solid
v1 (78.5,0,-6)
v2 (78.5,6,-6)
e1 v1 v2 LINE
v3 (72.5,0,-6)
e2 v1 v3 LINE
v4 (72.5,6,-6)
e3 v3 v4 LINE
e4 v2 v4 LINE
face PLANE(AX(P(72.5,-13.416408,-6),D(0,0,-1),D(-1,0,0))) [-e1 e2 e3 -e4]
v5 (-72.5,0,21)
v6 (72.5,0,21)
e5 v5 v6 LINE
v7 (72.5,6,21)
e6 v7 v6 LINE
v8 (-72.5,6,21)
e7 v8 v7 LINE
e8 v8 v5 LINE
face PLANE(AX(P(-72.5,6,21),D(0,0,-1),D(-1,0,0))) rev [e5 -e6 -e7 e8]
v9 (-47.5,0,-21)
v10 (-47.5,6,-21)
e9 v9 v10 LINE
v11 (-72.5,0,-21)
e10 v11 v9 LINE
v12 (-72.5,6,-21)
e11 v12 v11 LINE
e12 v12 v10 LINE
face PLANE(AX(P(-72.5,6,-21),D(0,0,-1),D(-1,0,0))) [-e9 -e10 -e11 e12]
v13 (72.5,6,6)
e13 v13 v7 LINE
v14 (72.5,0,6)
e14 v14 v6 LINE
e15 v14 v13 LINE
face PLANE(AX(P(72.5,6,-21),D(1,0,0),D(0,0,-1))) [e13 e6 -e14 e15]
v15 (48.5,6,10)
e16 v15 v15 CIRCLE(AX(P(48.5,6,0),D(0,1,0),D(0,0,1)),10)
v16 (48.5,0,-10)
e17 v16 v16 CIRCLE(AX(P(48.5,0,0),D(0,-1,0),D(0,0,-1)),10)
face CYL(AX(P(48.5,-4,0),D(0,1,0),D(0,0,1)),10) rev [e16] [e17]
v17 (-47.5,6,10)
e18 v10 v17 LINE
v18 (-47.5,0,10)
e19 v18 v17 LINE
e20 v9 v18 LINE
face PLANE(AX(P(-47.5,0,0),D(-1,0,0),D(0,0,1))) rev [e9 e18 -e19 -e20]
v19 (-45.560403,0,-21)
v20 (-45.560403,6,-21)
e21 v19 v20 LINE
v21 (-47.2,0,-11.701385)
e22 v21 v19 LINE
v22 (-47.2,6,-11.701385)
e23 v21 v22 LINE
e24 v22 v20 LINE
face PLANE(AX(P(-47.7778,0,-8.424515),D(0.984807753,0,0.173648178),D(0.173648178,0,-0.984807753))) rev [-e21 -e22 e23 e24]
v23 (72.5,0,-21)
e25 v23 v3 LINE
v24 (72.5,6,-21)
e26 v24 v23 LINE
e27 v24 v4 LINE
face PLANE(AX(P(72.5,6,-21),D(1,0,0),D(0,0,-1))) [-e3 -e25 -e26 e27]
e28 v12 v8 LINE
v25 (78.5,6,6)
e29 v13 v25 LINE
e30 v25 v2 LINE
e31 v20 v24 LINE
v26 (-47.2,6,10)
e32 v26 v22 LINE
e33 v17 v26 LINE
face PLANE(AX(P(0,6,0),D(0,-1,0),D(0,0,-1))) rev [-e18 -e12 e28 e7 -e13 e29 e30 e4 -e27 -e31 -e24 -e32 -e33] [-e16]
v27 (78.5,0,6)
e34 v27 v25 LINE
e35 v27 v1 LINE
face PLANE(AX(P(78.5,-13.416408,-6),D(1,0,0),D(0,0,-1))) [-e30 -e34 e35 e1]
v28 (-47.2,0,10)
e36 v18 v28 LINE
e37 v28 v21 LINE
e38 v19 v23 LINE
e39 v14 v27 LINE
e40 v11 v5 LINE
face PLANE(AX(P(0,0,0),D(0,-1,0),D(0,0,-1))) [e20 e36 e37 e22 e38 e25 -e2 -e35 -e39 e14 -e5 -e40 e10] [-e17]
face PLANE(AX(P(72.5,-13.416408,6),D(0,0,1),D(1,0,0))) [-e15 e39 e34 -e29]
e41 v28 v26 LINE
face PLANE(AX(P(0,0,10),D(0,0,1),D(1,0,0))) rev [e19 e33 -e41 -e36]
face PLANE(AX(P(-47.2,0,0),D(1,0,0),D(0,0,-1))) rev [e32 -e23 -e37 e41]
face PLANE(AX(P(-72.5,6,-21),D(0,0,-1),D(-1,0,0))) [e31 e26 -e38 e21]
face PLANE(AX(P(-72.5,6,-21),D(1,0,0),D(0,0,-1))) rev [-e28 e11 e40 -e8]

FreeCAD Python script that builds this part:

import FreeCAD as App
import Part
import Sketcher
from FreeCAD import Vector
Q = App.Units.Quantity

doc = App.newDocument("Part")
params = doc.addObject("Spreadsheet::Sheet", "Params")
for row, (alias, value) in enumerate([
    ("sketch1_width", "145 mm"),
    ("sketch1_height", "42 mm"),
    ("pad1_length", "6 mm"),
    ("sketch2_diameter", "8 mm"),
    ("sketch3_width", "6 mm"),
    ("sketch3_height", "12 mm"),
    ("pad2_length", "6 mm"),
    ("sketch4_width", "13 mm"),
    ("sketch4_width2", "19 mm"),
    ("sketch4_height", "11 mm"),
    ("sketch4_height2", "3.5 mm"),
    ("pad3_length", "6 mm"),
    ("sketch5_diameter", "1.5 mm"),
    ("sketch6_height", "31 mm"),
    ("sketch6_width", "0.3 mm"),
    ("sketch7_diameter", "20 mm"),
    ("pocket4_length", "10 mm"),
], start=1):
    params.set(f"A{row}", alias)
    params.set(f"B{row}", "=" + value)
    params.setAlias(f"B{row}", alias)

body = doc.addObject("PartDesign::Body", "Body")

# Sketch on XZ plane
sketch1 = doc.addObject("Sketcher::SketchObject", "Sketch")
body.addObject(sketch1)
sketch1.AttachmentSupport = (doc.XZ_Plane, [""])
sketch1.MapMode = "FlatFace"
sketch1.addGeometry([
    Part.LineSegment(Vector(-72, -21, 0), Vector(-72, 21, 0)),
    Part.LineSegment(Vector(-72, 21, 0), Vector(72, 21, 0)),
    Part.LineSegment(Vector(72, 21, 0), Vector(72, -21, 0)),
    Part.LineSegment(Vector(72, -21, 0), Vector(-72, -21, 0)),
], False)
sketch1.addConstraint([
    Sketcher.Constraint("Coincident", 0, 2, 1, 1),
    Sketcher.Constraint("Coincident", 1, 2, 2, 1),
    Sketcher.Constraint("Coincident", 2, 2, 3, 1),
    Sketcher.Constraint("Coincident", 3, 2, 0, 1),
    Sketcher.Constraint("Vertical", 0),
    Sketcher.Constraint("Horizontal", 1),
    Sketcher.Constraint("Vertical", 2),
    Sketcher.Constraint("Horizontal", 3),
    Sketcher.Constraint("Symmetric", 0, 2, 2, 2, -1, 1),
    Sketcher.Constraint("DistanceX", 1, 1, 1, 2, 145.0),
    Sketcher.Constraint("DistanceY", 0, 1, 0, 2, 42.0),
])
sketch1.setExpression("Constraints[9]", "Params.sketch1_width")
sketch1.setExpression("Constraints[10]", "Params.sketch1_height")
pad1 = doc.addObject("PartDesign::Pad", "Pad")
body.addObject(pad1)
pad1.Profile = sketch1
pad1.setExpression("Length", "Params.pad1_length")
pad1.Reversed = True

# Sketch on XZ plane
sketch2 = doc.addObject("Sketcher::SketchObject", "Sketch001")
body.addObject(sketch2)
sketch2.AttachmentSupport = (doc.XZ_Plane, [""])
sketch2.MapMode = "FlatFace"
sketch2.addGeometry(Part.Circle(Vector(48.5, 0, 0), Vector(0, 0, 1), 4), False)
sketch2.addConstraint([
    Sketcher.Constraint("PointOnObject", 0, 3, -1),
    Sketcher.Constraint("Diameter", 0, 8.0),
    Sketcher.Constraint("DistanceX", -1, 1, 0, 3, 48.5),
])
sketch2.setExpression("Constraints[1]", "Params.sketch2_diameter")
pocket1 = doc.addObject("PartDesign::Pocket", "Pocket")
body.addObject(pocket1)
pocket1.Profile = sketch2
pocket1.Type = "ThroughAll"

# Sketch on XZ plane
sketch3 = doc.addObject("Sketcher::SketchObject", "Sketch002")
body.addObject(sketch3)
sketch3.AttachmentSupport = (doc.XZ_Plane, [""])
sketch3.MapMode = "FlatFace"
sketch3.AttachmentOffset = App.Placement(Vector(0, 0, -6), App.Rotation())
sketch3.addGeometry([
    Part.LineSegment(Vector(72, -6, 0), Vector(72, 6, 0)),
    Part.LineSegment(Vector(72, 6, 0), Vector(78, 6, 0)),
    Part.LineSegment(Vector(78, 6, 0), Vector(78, -6, 0)),
    Part.LineSegment(Vector(78, -6, 0), Vector(72, -6, 0)),
], False)
sketch3.addConstraint([
    Sketcher.Constraint("Coincident", 0, 2, 1, 1),
    Sketcher.Constraint("Coincident", 1, 2, 2, 1),
    Sketcher.Constraint("Coincident", 2, 2, 3, 1),
    Sketcher.Constraint("Coincident", 3, 2, 0, 1),
    Sketcher.Constraint("Vertical", 0),
    Sketcher.Constraint("Horizontal", 1),
    Sketcher.Constraint("Vertical", 2),
    Sketcher.Constraint("Horizontal", 3),
    Sketcher.Constraint("DistanceX", 1, 1, 1, 2, 6.0),
    Sketcher.Constraint("DistanceY", 0, 1, 0, 2, 12.0),
    Sketcher.Constraint("DistanceY", -1, 1, 0, 2, 6.0),
    Sketcher.Constraint("DistanceX", -1, 1, 0, 2, 72.5),
])
sketch3.setExpression("Constraints[8]", "Params.sketch3_width")
sketch3.setExpression("Constraints[9]", "Params.sketch3_height")
pad2 = doc.addObject("PartDesign::Pad", "Pad001")
body.addObject(pad2)
pad2.Profile = sketch3
pad2.setExpression("Length", "Params.pad2_length")

# Sketch on XZ plane
sketch4 = doc.addObject("Sketcher::SketchObject", "Sketch003")
body.addObject(sketch4)
sketch4.AttachmentSupport = (doc.XZ_Plane, [""])
sketch4.MapMode = "FlatFace"
sketch4.AttachmentOffset = App.Placement(Vector(0, 0, -6), App.Rotation())
sketch4.addGeometry([
    Part.LineSegment(Vector(-59.5, 10, 0), Vector(-72.5, 10, 0)),  # 0
    Part.LineSegment(Vector(-72.5, 10, 0), Vector(-72.5, 21, 0)),  # 1
    Part.LineSegment(Vector(-72.5, 21, 0), Vector(-53.5, 21, 0)),  # 2
    Part.LineSegment(Vector(-53.5, 21, 0), Vector(-53.5, 17.5, 0)),  # 3
    Part.LineSegment(Vector(-53.5, 17.5, 0), Vector(-59.5, 17.5, 0)),  # 4
    Part.LineSegment(Vector(-59.5, 17.5, 0), Vector(-59.5, 10, 0)),  # 5
], False)
sketch4.addConstraint([
    Sketcher.Constraint("Coincident", 0, 2, 1, 1),
    Sketcher.Constraint("Coincident", 1, 2, 2, 1),
    Sketcher.Constraint("Coincident", 2, 2, 3, 1),
    Sketcher.Constraint("Coincident", 3, 2, 4, 1),
    Sketcher.Constraint("Coincident", 4, 2, 5, 1),
    Sketcher.Constraint("Coincident", 5, 2, 0, 1),
    Sketcher.Constraint("Horizontal", 0),
    Sketcher.Constraint("Vertical", 1),
    Sketcher.Constraint("Horizontal", 2),
    Sketcher.Constraint("Vertical", 3),
    Sketcher.Constraint("Horizontal", 4),
    Sketcher.Constraint("Vertical", 5),
    Sketcher.Constraint("DistanceX", 0, 2, 0, 1, 13.0),
    Sketcher.Constraint("DistanceX", 2, 1, 2, 2, 19.0),
    Sketcher.Constraint("DistanceY", 1, 1, 1, 2, 11.0),
    Sketcher.Constraint("DistanceY", 3, 2, 3, 1, 3.5),
    Sketcher.Constraint("DistanceY", -1, 1, 0, 2, 10.0),
    Sketcher.Constraint("DistanceX", 0, 2, -1, 1, 72.5),
])
sketch4.setExpression("Constraints[12]", "Params.sketch4_width")
sketch4.setExpression("Constraints[13]", "Params.sketch4_width2")
sketch4.setExpression("Constraints[14]", "Params.sketch4_height")
sketch4.setExpression("Constraints[15]", "Params.sketch4_height2")
pad3 = doc.addObject("PartDesign::Pad", "Pad002")
body.addObject(pad3)
pad3.Profile = sketch4
pad3.setExpression("Length", "Params.pad3_length")

# Sketch on XZ plane
sketch5 = doc.addObject("Sketcher::SketchObject", "Sketch004")
body.addObject(sketch5)
sketch5.AttachmentSupport = (doc.XZ_Plane, [""])
sketch5.MapMode = "FlatFace"
sketch5.addGeometry(Part.Circle(Vector(-161.5, -154.4, 0), Vector(0, 0, 1), 0.8), False)
sketch5.addConstraint([
    Sketcher.Constraint("Diameter", 0, 1.5),
    Sketcher.Constraint("DistanceX", 0, 3, -1, 1, 161.479104),
    Sketcher.Constraint("DistanceY", 0, 3, -1, 1, 154.351328),
])
sketch5.setExpression("Constraints[0]", "Params.sketch5_diameter")
pocket2 = doc.addObject("PartDesign::Pocket", "Pocket001")
body.addObject(pocket2)
pocket2.Profile = sketch5
pocket2.Type = "ThroughAll"

# Sketch on XZ plane
sketch6 = doc.addObject("Sketcher::SketchObject", "Sketch005")
body.addObject(sketch6)
sketch6.AttachmentSupport = (doc.XZ_Plane, [""])
sketch6.MapMode = "FlatFace"
sketch6.AttachmentOffset = App.Placement(Vector(0, 0, -6), App.Rotation())
sketch6.addGeometry([
    Part.LineSegment(Vector(-47.5, -21, 0), Vector(-47.5, 10, 0)),  # 0
    Part.LineSegment(Vector(-47.5, 10, 0), Vector(-47.2, 10, 0)),  # 1
    Part.LineSegment(Vector(-47.2, 10, 0), Vector(-47.2, -11.7, 0)),  # 2
    Part.LineSegment(Vector(-47.2, -11.7, 0), Vector(-45.56, -21, 0)),  # 3
    Part.LineSegment(Vector(-45.56, -21, 0), Vector(-47.5, -21, 0)),  # 4
], False)
sketch6.addConstraint([
    Sketcher.Constraint("Coincident", 0, 2, 1, 1),
    Sketcher.Constraint("Coincident", 1, 2, 2, 1),
    Sketcher.Constraint("Coincident", 2, 2, 3, 1),
    Sketcher.Constraint("Coincident", 3, 2, 4, 1),
    Sketcher.Constraint("Coincident", 4, 2, 0, 1),
    Sketcher.Constraint("Vertical", 0),
    Sketcher.Constraint("Horizontal", 1),
    Sketcher.Constraint("Vertical", 2),
    Sketcher.Constraint("Horizontal", 4),
    Sketcher.Constraint("DistanceY", 0, 1, 0, 2, 31.0),
    Sketcher.Constraint("Angle", 3, Q("-80 deg")),
    Sketcher.Constraint("DistanceX", 1, 1, 1, 2, 0.3),
    Sketcher.Constraint("DistanceY", -1, 1, 0, 2, 10.0),
    Sketcher.Constraint("DistanceX", 0, 2, -1, 1, 47.5),
    Sketcher.Constraint("Distance", 3, 9.442062),
])
sketch6.setExpression("Constraints[9]", "Params.sketch6_height")
sketch6.setExpression("Constraints[11]", "Params.sketch6_width")
pocket3 = doc.addObject("PartDesign::Pocket", "Pocket002")
body.addObject(pocket3)
pocket3.Profile = sketch6
pocket3.Type = "ThroughAll"
pocket3.Reversed = True

# Sketch on XZ plane
sketch7 = doc.addObject("Sketcher::SketchObject", "Sketch006")
body.addObject(sketch7)
sketch7.AttachmentSupport = (doc.XZ_Plane, [""])
sketch7.MapMode = "FlatFace"
sketch7.AttachmentOffset = App.Placement(Vector(0, 0, -6), App.Rotation())
sketch7.addGeometry(Part.Circle(Vector(48, 0, 0), Vector(0, 0, 1), 10), False)
sketch7.addConstraint([
    Sketcher.Constraint("PointOnObject", 0, 3, -1),
    Sketcher.Constraint("Diameter", 0, 20.0),
    Sketcher.Constraint("DistanceX", -1, 1, 0, 3, 48.5),
])
sketch7.setExpression("Constraints[1]", "Params.sketch7_diameter")
pocket4 = doc.addObject("PartDesign::Pocket", "Pocket003")
body.addObject(pocket4)
pocket4.Profile = sketch7
pocket4.setExpression("Length", "Params.pocket4_length")
pocket4.Reversed = True

doc.recompute()
